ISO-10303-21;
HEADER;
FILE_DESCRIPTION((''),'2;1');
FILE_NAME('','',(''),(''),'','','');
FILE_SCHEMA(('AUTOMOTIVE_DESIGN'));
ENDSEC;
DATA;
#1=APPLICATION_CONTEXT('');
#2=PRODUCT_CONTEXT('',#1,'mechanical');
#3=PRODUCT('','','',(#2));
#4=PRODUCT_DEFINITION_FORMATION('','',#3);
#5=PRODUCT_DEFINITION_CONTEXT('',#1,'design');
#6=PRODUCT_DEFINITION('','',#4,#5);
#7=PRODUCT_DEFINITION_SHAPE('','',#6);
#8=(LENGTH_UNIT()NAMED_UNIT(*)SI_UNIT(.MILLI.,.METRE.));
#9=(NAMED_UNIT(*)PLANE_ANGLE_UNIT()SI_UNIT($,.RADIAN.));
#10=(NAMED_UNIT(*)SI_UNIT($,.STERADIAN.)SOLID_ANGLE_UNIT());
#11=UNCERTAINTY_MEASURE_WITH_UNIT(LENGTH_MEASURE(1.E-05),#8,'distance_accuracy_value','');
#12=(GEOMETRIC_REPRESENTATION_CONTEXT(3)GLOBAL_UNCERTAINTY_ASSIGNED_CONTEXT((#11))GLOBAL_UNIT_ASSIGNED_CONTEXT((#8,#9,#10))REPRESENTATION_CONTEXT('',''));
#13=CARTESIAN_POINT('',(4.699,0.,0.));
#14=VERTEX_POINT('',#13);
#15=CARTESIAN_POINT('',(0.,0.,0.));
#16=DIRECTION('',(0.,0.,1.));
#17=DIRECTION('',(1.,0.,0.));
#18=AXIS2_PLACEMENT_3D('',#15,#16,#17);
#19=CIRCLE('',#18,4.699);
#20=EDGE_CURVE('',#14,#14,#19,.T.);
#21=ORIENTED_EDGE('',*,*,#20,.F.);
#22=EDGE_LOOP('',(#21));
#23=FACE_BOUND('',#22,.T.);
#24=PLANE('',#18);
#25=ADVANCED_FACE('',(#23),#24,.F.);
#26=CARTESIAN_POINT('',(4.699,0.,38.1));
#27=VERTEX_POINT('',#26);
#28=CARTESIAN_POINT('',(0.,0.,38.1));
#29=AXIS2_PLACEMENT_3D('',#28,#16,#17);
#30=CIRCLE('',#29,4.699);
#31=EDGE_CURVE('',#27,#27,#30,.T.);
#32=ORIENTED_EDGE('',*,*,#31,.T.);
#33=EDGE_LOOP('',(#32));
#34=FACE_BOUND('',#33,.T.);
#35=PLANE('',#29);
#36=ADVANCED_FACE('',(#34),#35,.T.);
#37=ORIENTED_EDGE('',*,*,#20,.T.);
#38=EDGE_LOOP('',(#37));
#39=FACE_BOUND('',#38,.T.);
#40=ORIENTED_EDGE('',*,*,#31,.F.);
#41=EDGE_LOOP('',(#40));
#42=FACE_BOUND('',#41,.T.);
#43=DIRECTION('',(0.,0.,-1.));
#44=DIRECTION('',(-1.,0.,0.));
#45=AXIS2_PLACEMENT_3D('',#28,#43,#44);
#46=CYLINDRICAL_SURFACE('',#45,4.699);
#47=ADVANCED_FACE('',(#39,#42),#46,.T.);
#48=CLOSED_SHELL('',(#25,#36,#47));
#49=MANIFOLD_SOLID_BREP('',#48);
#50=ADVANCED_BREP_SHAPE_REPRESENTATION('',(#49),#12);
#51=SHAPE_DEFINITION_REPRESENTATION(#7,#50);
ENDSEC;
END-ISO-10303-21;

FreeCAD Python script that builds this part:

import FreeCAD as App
import Part
import Sketcher
from FreeCAD import Vector
Q = App.Units.Quantity

doc = App.newDocument("Part")
body = doc.addObject("PartDesign::Body", "Body")

sketch1 = doc.addObject("Sketcher::SketchObject", "Sketch")
body.addObject(sketch1)
sketch1.AttachmentSupport = (doc.XY_Plane, [""])
sketch1.MapMode = "FlatFace"
sketch1.addGeometry(Part.Circle(Vector(0, 0, 0), Vector(0, 0, 1), 4.7), False)
sketch1.addConstraint(Sketcher.Constraint("Coincident", 0, 3, -1, 1))
sketch1.addConstraint(Sketcher.Constraint("Diameter", 0, Q("0.37 in")))
pad1 = doc.addObject("PartDesign::Pad", "Pad")
body.addObject(pad1)
pad1.Profile = sketch1
pad1.Length = Q("1.5 in")

doc.recompute()
